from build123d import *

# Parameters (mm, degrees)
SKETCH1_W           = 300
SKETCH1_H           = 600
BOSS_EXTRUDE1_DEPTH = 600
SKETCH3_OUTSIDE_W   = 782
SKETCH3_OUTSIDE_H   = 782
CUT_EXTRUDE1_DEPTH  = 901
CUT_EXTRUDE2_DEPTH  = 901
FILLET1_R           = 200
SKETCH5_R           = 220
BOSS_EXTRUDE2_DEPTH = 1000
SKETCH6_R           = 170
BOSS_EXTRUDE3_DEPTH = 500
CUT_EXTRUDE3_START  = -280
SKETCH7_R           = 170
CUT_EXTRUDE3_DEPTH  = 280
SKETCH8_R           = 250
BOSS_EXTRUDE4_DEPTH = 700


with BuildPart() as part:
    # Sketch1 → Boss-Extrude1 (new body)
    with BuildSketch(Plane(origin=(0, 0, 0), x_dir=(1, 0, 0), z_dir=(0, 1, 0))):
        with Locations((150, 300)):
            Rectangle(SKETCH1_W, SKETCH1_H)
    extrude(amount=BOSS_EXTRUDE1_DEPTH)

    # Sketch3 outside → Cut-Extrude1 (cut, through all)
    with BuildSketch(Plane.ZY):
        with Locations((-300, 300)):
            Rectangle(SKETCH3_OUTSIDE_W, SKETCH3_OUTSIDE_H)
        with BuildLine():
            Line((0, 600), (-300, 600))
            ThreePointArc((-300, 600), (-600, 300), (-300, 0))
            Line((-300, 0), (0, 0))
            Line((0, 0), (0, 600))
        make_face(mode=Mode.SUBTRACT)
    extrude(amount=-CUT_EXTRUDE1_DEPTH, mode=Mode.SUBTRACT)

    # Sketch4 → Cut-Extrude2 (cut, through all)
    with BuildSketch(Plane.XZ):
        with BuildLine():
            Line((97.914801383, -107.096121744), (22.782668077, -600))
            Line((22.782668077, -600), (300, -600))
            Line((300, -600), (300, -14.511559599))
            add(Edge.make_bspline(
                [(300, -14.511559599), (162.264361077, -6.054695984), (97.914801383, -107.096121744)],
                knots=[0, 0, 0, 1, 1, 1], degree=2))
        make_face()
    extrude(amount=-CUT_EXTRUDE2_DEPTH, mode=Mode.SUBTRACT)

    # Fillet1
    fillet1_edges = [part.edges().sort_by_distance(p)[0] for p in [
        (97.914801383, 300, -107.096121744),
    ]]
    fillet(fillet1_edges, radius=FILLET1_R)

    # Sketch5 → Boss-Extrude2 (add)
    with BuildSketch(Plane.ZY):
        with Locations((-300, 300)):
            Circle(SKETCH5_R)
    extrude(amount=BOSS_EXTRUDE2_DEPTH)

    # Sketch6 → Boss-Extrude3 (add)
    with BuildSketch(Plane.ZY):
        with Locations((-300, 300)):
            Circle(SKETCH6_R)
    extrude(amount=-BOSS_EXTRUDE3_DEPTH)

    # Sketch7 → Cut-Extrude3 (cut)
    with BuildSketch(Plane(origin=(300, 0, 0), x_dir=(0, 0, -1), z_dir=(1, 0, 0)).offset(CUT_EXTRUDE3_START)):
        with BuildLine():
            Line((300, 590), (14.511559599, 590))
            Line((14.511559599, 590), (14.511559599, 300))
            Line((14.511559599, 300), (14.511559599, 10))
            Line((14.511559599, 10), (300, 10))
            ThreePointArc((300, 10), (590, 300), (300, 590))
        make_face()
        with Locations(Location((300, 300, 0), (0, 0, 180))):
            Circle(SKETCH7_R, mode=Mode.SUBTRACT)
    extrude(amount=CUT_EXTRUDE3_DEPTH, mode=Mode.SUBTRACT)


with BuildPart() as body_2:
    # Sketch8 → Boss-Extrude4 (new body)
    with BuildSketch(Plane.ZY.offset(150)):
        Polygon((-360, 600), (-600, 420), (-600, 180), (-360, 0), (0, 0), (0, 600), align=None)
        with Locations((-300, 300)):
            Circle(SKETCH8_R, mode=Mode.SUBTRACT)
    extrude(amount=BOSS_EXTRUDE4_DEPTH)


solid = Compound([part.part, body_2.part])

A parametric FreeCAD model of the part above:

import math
import FreeCAD as App
import Part
import Sketcher

V = App.Vector


def edges_at(feature, points):
    """Names of the edges that pass closest to the given points."""
    edges = feature.Shape.Edges
    near = lambda p: min(range(len(edges)), key=lambda i: edges[i].distToShape(Part.Vertex(*p))[0])
    return sorted({f"Edge{near(p) + 1}" for p in points})

doc = App.newDocument("Part")
params = doc.addObject("Spreadsheet::Sheet", "Params")
for row, (alias, value) in enumerate([
    ("sketch1_width", "300 mm"),
    ("sketch1_height", "600 mm"),
    ("pad1_length", "600 mm"),
    ("sketch2_radius", "300 mm"),
    ("sketch2_width", "782 mm"),
    ("sketch2_height", "300 mm"),
    ("fillet_radius", "200 mm"),
    ("sketch4_diameter", "440 mm"),
    ("pad2_length", "1000 mm"),
    ("sketch5_diameter", "340 mm"),
    ("pad3_length", "500 mm"),
    ("sketch6_diameter", "340 mm"),
    ("sketch6_radius", "290 mm"),
    ("pocket3_length", "280 mm"),
    ("sketch7_diameter", "500 mm"),
    ("sketch7_width", "240 mm"),
    ("sketch7_width2", "600 mm"),
    ("sketch7_height", "360 mm"),
    ("sketch7_length", "300 mm"),
    ("pad4_length", "700 mm"),
], start=1):
    params.set(f"A{row}", alias)
    params.set(f"B{row}", "=" + value)
    params.setAlias(f"B{row}", alias)

body = doc.addObject("PartDesign::Body", "Body")

sketch1 = body.newObject("Sketcher::SketchObject", "Sketch")
sketch1.AttachmentSupport = (doc.getObject("XZ_Plane"), [""])
sketch1.MapMode = "FlatFace"
sketch1.addGeometry([
    Part.LineSegment(V(0, -600, 0), V(0, 0, 0)),
    Part.LineSegment(V(0, 0, 0), V(300, 0, 0)),
    Part.LineSegment(V(300, 0, 0), V(300, -600, 0)),
    Part.LineSegment(V(300, -600, 0), V(0, -600, 0)),
], False)
sketch1.addConstraint([
    Sketcher.Constraint("Coincident", 0, 2, 1, 1),
    Sketcher.Constraint("Coincident", 1, 2, 2, 1),
    Sketcher.Constraint("Coincident", 2, 2, 3, 1),
    Sketcher.Constraint("Coincident", 3, 2, 0, 1),
    Sketcher.Constraint("Vertical", 0),
    Sketcher.Constraint("Horizontal", 1),
    Sketcher.Constraint("Vertical", 2),
    Sketcher.Constraint("Horizontal", 3),
    Sketcher.Constraint("Coincident", 0, 2, -1, 1),
    Sketcher.Constraint("DistanceX", 1, 1, 1, 2, 300.0),
    Sketcher.Constraint("DistanceY", 0, 1, 0, 2, 600.0),
])
sketch1.setExpression("Constraints[9]", "Params.sketch1_width")
sketch1.setExpression("Constraints[10]", "Params.sketch1_height")
pad1 = body.newObject("PartDesign::Pad", "Pad")
pad1.Profile = sketch1
pad1.setExpression("Length", "Params.pad1_length")
pad1.Reversed = True

sketch2 = body.newObject("Sketcher::SketchObject", "Sketch001")
sketch2.AttachmentSupport = (doc.getObject("YZ_Plane"), [""])
sketch2.MapMode = "FlatFace"
sketch2.addGeometry([
    Part.LineSegment(V(691, -691, 0), V(-91, -691, 0)),
    Part.LineSegment(V(-91, -691, 0), V(-91, 91, 0)),
    Part.LineSegment(V(-91, 91, 0), V(691, 91, 0)),
    Part.LineSegment(V(691, 91, 0), V(691, -691, 0)),
    Part.LineSegment(V(600, -300, 0), V(600, 0, 0)),
    Part.LineSegment(V(600, 0, 0), V(0, 0, 0)),
    Part.LineSegment(V(0, 0, 0), V(0, -300, 0)),
    Part.ArcOfCircle(Part.Circle(V(300, -300, 0), V(0, 0, 1), 300), math.radians(180), math.radians(360)),
], False)
sketch2.addConstraint([
    Sketcher.Constraint("Coincident", 0, 2, 1, 1),
    Sketcher.Constraint("Coincident", 1, 2, 2, 1),
    Sketcher.Constraint("Coincident", 2, 2, 3, 1),
    Sketcher.Constraint("Coincident", 3, 2, 0, 1),
    Sketcher.Constraint("Coincident", 4, 2, 5, 1),
    Sketcher.Constraint("Coincident", 5, 2, 6, 1),
    Sketcher.Constraint("Tangent", 6, 2, 7, 1),
    Sketcher.Constraint("Tangent", 7, 2, 4, 1),
    Sketcher.Constraint("Horizontal", 0),
    Sketcher.Constraint("Vertical", 1),
    Sketcher.Constraint("Horizontal", 2),
    Sketcher.Constraint("Vertical", 3),
    Sketcher.Constraint("Vertical", 4),
    Sketcher.Constraint("Horizontal", 5),
    Sketcher.Constraint("Vertical", 6),
    Sketcher.Constraint("Coincident", 5, 2, -1, 1),
    Sketcher.Constraint("Equal", 2, 1),
    Sketcher.Constraint("Radius", 7, 300.0),
    Sketcher.Constraint("DistanceX", 0, 2, 0, 1, 782.0),
    Sketcher.Constraint("DistanceY", 4, 1, 4, 2, 300.0),
    Sketcher.Constraint("DistanceX", 0, 2, -1, 1, 91.0),
    Sketcher.Constraint("DistanceY", 0, 2, -1, 1, 691.0),
])
sketch2.setExpression("Constraints[17]", "Params.sketch2_radius")
sketch2.setExpression("Constraints[18]", "Params.sketch2_width")
sketch2.setExpression("Constraints[19]", "Params.sketch2_height")
pocket1 = body.newObject("PartDesign::Pocket", "Pocket")
pocket1.Profile = sketch2
pocket1.Type = "ThroughAll"
pocket1.Reversed = True

sketch3 = body.newObject("Sketcher::SketchObject", "Sketch002")
sketch3.AttachmentSupport = (doc.getObject("XZ_Plane"), [""])
sketch3.MapMode = "FlatFace"
sketch3.addGeometry([
    Part.LineSegment(V(97.914801, -107.096122, 0), V(22.782668, -600, 0)),
    Part.LineSegment(V(22.782668, -600, 0), V(300, -600, 0)),
    Part.LineSegment(V(300, -600, 0), V(300, -14.51156, 0)),
    Part.BSplineCurve([V(300, -14.51156, 0), V(162.264361, -6.054696, 0), V(97.914801, -107.096122, 0)], [3, 3], [0, 1], False, 2, [1, 1, 1], False),
], False)
sketch3.addConstraint([
    Sketcher.Constraint("Block", 3),
    Sketcher.Constraint("Coincident", 0, 2, 1, 1),
    Sketcher.Constraint("Coincident", 1, 2, 2, 1),
    Sketcher.Constraint("Coincident", 2, 2, 3, 1),
    Sketcher.Constraint("Coincident", 3, 2, 0, 1),
    Sketcher.Constraint("Horizontal", 1),
    Sketcher.Constraint("Vertical", 2),
    Sketcher.Constraint("DistanceY", 0, 2, -1, 1, 600.0),
    Sketcher.Constraint("DistanceX", 1, 1, 1, 2, 277.217332),
])
pocket2 = body.newObject("PartDesign::Pocket", "Pocket001")
pocket2.Profile = sketch3
pocket2.Type = "ThroughAll"
doc.recompute()

fillet = body.newObject("PartDesign::Fillet", "Fillet")
fillet.Base = (pocket2, edges_at(pocket2, [(97.915, 300, -107.096)]))
fillet.setExpression("Radius", "Params.fillet_radius")

sketch4 = body.newObject("Sketcher::SketchObject", "Sketch003")
sketch4.AttachmentSupport = (doc.getObject("YZ_Plane"), [""])
sketch4.MapMode = "FlatFace"
sketch4.addGeometry(Part.Circle(V(300, -300, 0), V(0, 0, 1), 220), False)
sketch4.addConstraint([
    Sketcher.Constraint("Diameter", 0, 440.0),
    Sketcher.Constraint("DistanceX", -1, 1, 0, 3, 300.0),
    Sketcher.Constraint("DistanceY", 0, 3, -1, 1, 300.0),
])
sketch4.setExpression("Constraints[0]", "Params.sketch4_diameter")
pad2 = body.newObject("PartDesign::Pad", "Pad001")
pad2.Profile = sketch4
pad2.setExpression("Length", "Params.pad2_length")
pad2.Reversed = True

sketch5 = body.newObject("Sketcher::SketchObject", "Sketch004")
sketch5.AttachmentSupport = (doc.getObject("YZ_Plane"), [""])
sketch5.MapMode = "FlatFace"
sketch5.addGeometry(Part.Circle(V(300, -300, 0), V(0, 0, 1), 170), False)
sketch5.addConstraint([
    Sketcher.Constraint("Diameter", 0, 340.0),
    Sketcher.Constraint("DistanceX", -1, 1, 0, 3, 300.0),
    Sketcher.Constraint("DistanceY", 0, 3, -1, 1, 300.0),
])
sketch5.setExpression("Constraints[0]", "Params.sketch5_diameter")
pad3 = body.newObject("PartDesign::Pad", "Pad002")
pad3.Profile = sketch5
pad3.setExpression("Length", "Params.pad3_length")

sketch6 = body.newObject("Sketcher::SketchObject", "Sketch005")
sketch6.AttachmentSupport = (doc.getObject("YZ_Plane"), [""])
sketch6.MapMode = "FlatFace"
sketch6.AttachmentOffset = App.Placement(V(0, 0, 20), App.Rotation())
sketch6.addGeometry([
    Part.LineSegment(V(590, -300, 0), V(590, -14.51156, 0)),
    Part.LineSegment(V(590, -14.51156, 0), V(10, -14.51156, 0)),
    Part.LineSegment(V(10, -14.51156, 0), V(10, -300, 0)),
    Part.ArcOfCircle(Part.Circle(V(300, -300, 0), V(0, 0, 1), 290), math.radians(180), math.radians(360)),
    Part.Circle(V(300, -300, 0), V(0, 0, 1), 170),
], False)
sketch6.addConstraint([
    Sketcher.Constraint("Coincident", 0, 2, 1, 1),
    Sketcher.Constraint("Coincident", 1, 2, 2, 1),
    Sketcher.Constraint("Tangent", 2, 2, 3, 1),
    Sketcher.Constraint("Tangent", 3, 2, 0, 1),
    Sketcher.Constraint("Vertical", 0),
    Sketcher.Constraint("Horizontal", 1),
    Sketcher.Constraint("Vertical", 2),
    Sketcher.Constraint("Coincident", 4, 3, 3, 3),
    Sketcher.Constraint("Diameter", 4, 340.0),
    Sketcher.Constraint("Radius", 3, 290.0),
    Sketcher.Constraint("DistanceX", -1, 1, 3, 3, 300.0),
    Sketcher.Constraint("DistanceY", 3, 3, -1, 1, 300.0),
    Sketcher.Constraint("DistanceY", 0, 1, 0, 2, 285.48844),
])
sketch6.setExpression("Constraints[8]", "Params.sketch6_diameter")
sketch6.setExpression("Constraints[9]", "Params.sketch6_radius")
pocket3 = body.newObject("PartDesign::Pocket", "Pocket002")
pocket3.Profile = sketch6
pocket3.setExpression("Length", "Params.pocket3_length")
pocket3.Reversed = True
body2 = doc.addObject("PartDesign::Body", "Body001")

sketch7 = body2.newObject("Sketcher::SketchObject", "Sketch006")
sketch7.AttachmentSupport = (doc.getObject("YZ_Plane001"), [""])
sketch7.MapMode = "FlatFace"
sketch7.AttachmentOffset = App.Placement(V(0, 0, -150), App.Rotation())
sketch7.addGeometry([
    Part.LineSegment(V(600, -360, 0), V(420, -600, 0)),
    Part.LineSegment(V(420, -600, 0), V(180, -600, 0)),
    Part.LineSegment(V(180, -600, 0), V(0, -360, 0)),
    Part.LineSegment(V(0, -360, 0), V(0, 0, 0)),
    Part.LineSegment(V(0, 0, 0), V(600, 0, 0)),
    Part.LineSegment(V(600, 0, 0), V(600, -360, 0)),
    Part.Circle(V(300, -300, 0), V(0, 0, 1), 250),
], False)
sketch7.addConstraint([
    Sketcher.Constraint("Coincident", 0, 2, 1, 1),
    Sketcher.Constraint("Coincident", 1, 2, 2, 1),
    Sketcher.Constraint("Coincident", 2, 2, 3, 1),
    Sketcher.Constraint("Coincident", 3, 2, 4, 1),
    Sketcher.Constraint("Coincident", 4, 2, 5, 1),
    Sketcher.Constraint("Coincident", 5, 2, 0, 1),
    Sketcher.Constraint("Horizontal", 1),
    Sketcher.Constraint("Vertical", 3),
    Sketcher.Constraint("Horizontal", 4),
    Sketcher.Constraint("Vertical", 5),
    Sketcher.Constraint("Coincident", 3, 2, -1, 1),
    Sketcher.Constraint("Horizontal", 2, 2, 5, 2),
    Sketcher.Constraint("Equal", 0, 2),
    Sketcher.Constraint("Diameter", 6, 500.0),
    Sketcher.Constraint("DistanceX", 1, 2, 1, 1, 240.0),
    Sketcher.Constraint("DistanceX", 4, 1, 4, 2, 600.0),
    Sketcher.Constraint("DistanceY", 3, 1, 3, 2, 360.0),
    Sketcher.Constraint("Distance", 0, 300.0),
    Sketcher.Constraint("DistanceX", -1, 1, 6, 3, 300.0),
    Sketcher.Constraint("DistanceY", 6, 3, -1, 1, 300.0),
])
sketch7.setExpression("Constraints[13]", "Params.sketch7_diameter")
sketch7.setExpression("Constraints[14]", "Params.sketch7_width")
sketch7.setExpression("Constraints[15]", "Params.sketch7_width2")
sketch7.setExpression("Constraints[16]", "Params.sketch7_height")
sketch7.setExpression("Constraints[17]", "Params.sketch7_length")
pad4 = body2.newObject("PartDesign::Pad", "Pad003")
pad4.Profile = sketch7
pad4.setExpression("Length", "Params.pad4_length")
pad4.Reversed = True

doc.recompute()
